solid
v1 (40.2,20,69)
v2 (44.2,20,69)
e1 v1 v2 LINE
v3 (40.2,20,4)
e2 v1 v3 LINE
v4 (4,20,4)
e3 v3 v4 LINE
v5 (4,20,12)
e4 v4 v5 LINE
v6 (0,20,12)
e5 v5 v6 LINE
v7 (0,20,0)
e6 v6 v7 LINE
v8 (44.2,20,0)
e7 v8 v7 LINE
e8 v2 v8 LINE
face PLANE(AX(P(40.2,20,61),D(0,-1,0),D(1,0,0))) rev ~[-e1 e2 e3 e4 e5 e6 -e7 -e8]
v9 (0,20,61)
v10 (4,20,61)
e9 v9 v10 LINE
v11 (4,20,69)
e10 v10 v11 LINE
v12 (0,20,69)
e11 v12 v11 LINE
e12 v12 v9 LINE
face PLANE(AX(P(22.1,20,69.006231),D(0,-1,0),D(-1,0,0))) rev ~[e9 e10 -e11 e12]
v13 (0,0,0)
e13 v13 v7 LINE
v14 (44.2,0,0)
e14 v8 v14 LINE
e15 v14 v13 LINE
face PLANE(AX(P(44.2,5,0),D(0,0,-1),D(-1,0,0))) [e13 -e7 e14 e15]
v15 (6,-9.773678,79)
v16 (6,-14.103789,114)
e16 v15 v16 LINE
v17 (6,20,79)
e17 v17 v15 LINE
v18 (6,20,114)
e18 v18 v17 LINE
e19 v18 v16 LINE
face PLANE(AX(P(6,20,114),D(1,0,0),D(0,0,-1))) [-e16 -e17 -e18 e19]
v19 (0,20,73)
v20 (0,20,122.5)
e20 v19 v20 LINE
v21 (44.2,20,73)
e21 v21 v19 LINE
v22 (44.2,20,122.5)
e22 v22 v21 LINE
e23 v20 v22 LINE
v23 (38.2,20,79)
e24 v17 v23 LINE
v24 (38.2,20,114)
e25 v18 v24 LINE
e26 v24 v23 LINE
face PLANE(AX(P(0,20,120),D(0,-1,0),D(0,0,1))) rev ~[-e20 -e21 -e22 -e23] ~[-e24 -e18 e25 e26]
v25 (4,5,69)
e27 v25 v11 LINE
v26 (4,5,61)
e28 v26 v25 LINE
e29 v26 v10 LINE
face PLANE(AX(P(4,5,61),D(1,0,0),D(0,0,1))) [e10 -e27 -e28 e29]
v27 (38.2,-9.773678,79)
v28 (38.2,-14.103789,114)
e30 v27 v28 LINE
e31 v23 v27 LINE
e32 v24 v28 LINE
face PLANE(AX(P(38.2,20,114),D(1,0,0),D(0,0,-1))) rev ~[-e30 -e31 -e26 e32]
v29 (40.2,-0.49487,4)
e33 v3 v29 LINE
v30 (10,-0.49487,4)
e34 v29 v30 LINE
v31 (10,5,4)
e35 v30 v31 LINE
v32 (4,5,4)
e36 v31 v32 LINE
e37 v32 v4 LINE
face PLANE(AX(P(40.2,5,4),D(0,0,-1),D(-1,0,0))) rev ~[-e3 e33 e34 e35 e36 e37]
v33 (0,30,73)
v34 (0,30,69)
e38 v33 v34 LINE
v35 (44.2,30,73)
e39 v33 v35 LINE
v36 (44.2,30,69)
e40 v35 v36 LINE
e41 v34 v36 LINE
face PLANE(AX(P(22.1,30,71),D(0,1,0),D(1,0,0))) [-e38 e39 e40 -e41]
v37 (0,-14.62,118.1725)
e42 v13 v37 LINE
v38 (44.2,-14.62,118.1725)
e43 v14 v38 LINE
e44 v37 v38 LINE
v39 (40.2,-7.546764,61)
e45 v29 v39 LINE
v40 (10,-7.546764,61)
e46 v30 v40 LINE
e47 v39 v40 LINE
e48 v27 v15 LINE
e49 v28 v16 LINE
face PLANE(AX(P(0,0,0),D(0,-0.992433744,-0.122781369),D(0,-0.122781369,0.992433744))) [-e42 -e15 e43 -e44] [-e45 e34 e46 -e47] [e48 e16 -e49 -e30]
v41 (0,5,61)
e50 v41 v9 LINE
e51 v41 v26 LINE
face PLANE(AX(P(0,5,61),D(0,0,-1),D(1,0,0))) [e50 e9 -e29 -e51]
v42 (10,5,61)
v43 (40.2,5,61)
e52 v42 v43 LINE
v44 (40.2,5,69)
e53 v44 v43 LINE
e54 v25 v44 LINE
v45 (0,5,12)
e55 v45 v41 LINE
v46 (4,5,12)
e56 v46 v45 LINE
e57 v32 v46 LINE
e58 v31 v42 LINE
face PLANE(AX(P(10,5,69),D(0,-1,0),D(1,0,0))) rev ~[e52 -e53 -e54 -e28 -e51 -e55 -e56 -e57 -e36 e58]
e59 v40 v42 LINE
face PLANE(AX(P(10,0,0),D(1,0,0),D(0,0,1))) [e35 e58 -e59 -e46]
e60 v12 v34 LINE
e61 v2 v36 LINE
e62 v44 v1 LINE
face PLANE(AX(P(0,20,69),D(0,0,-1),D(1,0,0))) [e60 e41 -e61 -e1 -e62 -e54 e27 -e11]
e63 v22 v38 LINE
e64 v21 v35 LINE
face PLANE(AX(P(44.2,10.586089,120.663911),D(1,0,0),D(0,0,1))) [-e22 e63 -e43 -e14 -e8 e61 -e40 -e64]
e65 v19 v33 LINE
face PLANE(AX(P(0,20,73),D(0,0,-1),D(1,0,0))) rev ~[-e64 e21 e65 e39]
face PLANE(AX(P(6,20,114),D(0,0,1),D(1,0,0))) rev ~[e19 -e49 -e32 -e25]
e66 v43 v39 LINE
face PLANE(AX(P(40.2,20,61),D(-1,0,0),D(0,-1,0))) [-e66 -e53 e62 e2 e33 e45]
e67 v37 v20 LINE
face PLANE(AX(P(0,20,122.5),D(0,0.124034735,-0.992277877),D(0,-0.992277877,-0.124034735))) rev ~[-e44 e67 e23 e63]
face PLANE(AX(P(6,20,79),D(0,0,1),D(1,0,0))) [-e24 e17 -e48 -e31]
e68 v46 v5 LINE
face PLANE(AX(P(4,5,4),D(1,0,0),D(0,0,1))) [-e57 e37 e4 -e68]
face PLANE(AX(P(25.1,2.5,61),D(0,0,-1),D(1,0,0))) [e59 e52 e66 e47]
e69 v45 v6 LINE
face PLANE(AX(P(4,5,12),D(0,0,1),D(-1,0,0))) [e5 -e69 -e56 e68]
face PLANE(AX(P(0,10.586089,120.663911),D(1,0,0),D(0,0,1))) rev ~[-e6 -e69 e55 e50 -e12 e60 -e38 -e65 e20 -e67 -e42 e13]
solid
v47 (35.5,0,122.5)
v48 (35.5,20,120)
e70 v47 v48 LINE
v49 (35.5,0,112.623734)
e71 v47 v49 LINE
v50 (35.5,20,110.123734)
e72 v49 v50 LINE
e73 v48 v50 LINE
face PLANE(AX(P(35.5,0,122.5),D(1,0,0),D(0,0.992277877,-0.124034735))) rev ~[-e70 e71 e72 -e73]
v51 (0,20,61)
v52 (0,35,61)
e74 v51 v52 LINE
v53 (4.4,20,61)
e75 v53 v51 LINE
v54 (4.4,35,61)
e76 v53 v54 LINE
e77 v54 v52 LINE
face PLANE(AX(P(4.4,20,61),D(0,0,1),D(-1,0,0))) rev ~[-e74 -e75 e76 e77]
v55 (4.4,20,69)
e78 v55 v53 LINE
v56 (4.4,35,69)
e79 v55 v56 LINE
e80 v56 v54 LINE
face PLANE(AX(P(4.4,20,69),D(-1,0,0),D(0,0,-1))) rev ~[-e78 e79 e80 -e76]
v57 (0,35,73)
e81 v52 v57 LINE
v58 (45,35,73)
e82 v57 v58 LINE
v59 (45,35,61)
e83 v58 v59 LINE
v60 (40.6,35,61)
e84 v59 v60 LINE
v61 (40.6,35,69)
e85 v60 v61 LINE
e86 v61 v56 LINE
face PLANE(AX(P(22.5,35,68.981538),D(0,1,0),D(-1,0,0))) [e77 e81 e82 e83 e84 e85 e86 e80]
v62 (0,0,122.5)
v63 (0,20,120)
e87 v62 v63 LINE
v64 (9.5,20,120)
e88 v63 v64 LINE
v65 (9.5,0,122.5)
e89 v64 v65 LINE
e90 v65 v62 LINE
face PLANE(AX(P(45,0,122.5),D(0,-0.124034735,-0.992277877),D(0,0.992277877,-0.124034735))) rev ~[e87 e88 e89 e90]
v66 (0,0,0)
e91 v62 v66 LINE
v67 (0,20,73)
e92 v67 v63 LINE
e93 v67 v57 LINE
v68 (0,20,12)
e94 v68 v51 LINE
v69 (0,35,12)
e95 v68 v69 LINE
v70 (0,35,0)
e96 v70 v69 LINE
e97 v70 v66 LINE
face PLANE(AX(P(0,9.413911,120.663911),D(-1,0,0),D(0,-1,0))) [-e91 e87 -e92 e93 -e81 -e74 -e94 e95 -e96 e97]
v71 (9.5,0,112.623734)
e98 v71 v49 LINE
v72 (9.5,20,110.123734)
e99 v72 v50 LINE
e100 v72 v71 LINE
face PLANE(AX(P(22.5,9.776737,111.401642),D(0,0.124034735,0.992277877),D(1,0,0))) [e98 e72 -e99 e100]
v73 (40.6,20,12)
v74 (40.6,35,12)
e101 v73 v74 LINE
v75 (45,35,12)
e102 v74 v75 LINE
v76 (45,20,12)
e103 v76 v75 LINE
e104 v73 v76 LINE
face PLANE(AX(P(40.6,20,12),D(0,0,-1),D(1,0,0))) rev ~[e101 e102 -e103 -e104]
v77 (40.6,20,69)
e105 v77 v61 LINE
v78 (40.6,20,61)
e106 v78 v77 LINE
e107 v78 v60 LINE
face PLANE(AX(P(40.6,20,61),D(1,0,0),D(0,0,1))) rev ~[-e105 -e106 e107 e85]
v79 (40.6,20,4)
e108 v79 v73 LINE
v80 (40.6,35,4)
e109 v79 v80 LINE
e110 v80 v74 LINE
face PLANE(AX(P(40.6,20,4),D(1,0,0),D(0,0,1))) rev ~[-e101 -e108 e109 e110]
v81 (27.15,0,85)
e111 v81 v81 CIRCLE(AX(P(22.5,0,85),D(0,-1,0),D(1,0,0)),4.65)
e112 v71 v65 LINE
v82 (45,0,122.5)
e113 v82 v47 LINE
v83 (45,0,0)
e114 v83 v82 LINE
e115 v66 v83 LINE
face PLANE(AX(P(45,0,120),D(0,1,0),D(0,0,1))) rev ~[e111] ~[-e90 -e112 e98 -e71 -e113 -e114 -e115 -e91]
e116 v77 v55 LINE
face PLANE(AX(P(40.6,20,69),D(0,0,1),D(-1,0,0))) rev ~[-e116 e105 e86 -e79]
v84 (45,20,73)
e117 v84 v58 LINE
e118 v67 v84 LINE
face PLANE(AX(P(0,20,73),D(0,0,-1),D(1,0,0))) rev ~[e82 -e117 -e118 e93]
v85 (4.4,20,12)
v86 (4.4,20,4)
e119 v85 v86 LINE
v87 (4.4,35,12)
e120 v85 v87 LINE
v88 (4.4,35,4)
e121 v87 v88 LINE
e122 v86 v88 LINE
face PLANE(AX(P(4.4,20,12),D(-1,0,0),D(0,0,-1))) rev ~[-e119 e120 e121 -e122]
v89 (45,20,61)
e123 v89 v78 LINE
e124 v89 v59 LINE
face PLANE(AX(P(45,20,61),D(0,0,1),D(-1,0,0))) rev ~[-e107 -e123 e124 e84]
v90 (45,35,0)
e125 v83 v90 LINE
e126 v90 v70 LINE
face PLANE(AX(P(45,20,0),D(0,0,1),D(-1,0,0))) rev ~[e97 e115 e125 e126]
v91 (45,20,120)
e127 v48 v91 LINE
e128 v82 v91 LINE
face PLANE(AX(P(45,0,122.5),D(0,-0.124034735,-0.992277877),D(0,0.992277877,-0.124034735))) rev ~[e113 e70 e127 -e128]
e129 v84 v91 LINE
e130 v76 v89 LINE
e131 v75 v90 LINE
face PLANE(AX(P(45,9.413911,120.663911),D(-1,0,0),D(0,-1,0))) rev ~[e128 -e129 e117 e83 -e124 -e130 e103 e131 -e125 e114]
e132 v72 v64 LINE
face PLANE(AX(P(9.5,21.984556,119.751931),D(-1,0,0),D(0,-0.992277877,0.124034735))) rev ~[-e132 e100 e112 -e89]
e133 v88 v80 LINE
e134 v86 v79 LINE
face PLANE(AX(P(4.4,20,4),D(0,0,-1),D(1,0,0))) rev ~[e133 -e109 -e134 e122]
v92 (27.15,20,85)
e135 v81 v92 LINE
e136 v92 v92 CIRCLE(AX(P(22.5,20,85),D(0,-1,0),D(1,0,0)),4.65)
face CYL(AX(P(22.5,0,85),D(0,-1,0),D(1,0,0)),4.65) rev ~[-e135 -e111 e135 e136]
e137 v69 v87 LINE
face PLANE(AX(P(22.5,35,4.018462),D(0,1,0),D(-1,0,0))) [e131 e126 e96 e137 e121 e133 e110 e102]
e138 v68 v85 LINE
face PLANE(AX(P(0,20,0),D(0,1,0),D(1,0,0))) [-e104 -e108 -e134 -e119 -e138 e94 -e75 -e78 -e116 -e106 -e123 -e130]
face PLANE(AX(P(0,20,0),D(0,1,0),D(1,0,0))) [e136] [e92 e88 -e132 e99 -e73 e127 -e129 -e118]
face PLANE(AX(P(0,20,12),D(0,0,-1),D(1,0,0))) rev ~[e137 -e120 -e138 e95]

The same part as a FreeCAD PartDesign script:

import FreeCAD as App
import Part
import Sketcher
from FreeCAD import Vector


def add_polygon(sketch, points):
    """Adds a closed chain of lines whose ends are joined by coincident constraints."""
    first, n = sketch.GeometryCount, len(points)
    for a, b in zip(points, points[1:] + points[:1]):
        sketch.addGeometry(Part.LineSegment(App.Vector(*a, 0), App.Vector(*b, 0)), False)
    for i in range(n):
        sketch.addConstraint(Sketcher.Constraint("Coincident", first + i, 2, first + (i + 1) % n, 1))

doc = App.newDocument("Part")
body = doc.addObject("PartDesign::Body", "Body")

# Sketch on XY plane
sketch1 = doc.addObject("Sketcher::SketchObject", "Sketch")
body.addObject(sketch1)
sketch1.AttachmentSupport = (doc.XY_Plane, [""])
sketch1.MapMode = "FlatFace"
add_polygon(sketch1, [(0, 20), (0, 0), (45, 0), (45, 20)])  # lines 0-3
sketch1.addConstraint(Sketcher.Constraint("Vertical", 0))
sketch1.addConstraint(Sketcher.Constraint("Horizontal", 1))
sketch1.addConstraint(Sketcher.Constraint("Vertical", 2))
sketch1.addConstraint(Sketcher.Constraint("Horizontal", 3))
sketch1.addConstraint(Sketcher.Constraint("Coincident", 0, 2, -1, 1))
sketch1.addConstraint(Sketcher.Constraint("DistanceX", 1, 1, 1, 2, 45.0))
sketch1.addConstraint(Sketcher.Constraint("DistanceY", 0, 2, 0, 1, 20.0))
pad1 = doc.addObject("PartDesign::Pad", "Pad")
body.addObject(pad1)
pad1.Profile = sketch1
pad1.Length = 120

# Sketch on YZ plane
sketch2 = doc.addObject("Sketcher::SketchObject", "Sketch001")
body.addObject(sketch2)
sketch2.AttachmentSupport = (doc.YZ_Plane, [""])
sketch2.MapMode = "FlatFace"
sketch2.AttachmentOffset = App.Placement(Vector(0, 0, 45), App.Rotation())
add_polygon(sketch2, [(0, 122.5), (0, 120), (20, 120)])  # lines 0-2
sketch2.addConstraint(Sketcher.Constraint("Vertical", 0))
sketch2.addConstraint(Sketcher.Constraint("Horizontal", 1))
sketch2.addConstraint(Sketcher.Constraint("PointOnObject", 0, 2, -2))
sketch2.addConstraint(Sketcher.Constraint("DistanceX", 1, 1, 1, 2, 20.0))
sketch2.addConstraint(Sketcher.Constraint("DistanceY", 0, 2, 0, 1, 2.5))
sketch2.addConstraint(Sketcher.Constraint("DistanceY", -1, 1, 0, 2, 120.0))
pad2 = doc.addObject("PartDesign::Pad", "Pad001")
body.addObject(pad2)
pad2.Profile = sketch2
pad2.Length = 45
pad2.Reversed = True

# Sketch on XZ plane
sketch3 = doc.addObject("Sketcher::SketchObject", "Sketch002")
body.addObject(sketch3)
sketch3.AttachmentSupport = (doc.XZ_Plane, [""])
sketch3.MapMode = "FlatFace"
sketch3.addGeometry(Part.Circle(Vector(22.5, 85, 0), Vector(0, 0, 1), 4.7), False)
sketch3.addConstraint(Sketcher.Constraint("Diameter", 0, 9.3))
sketch3.addConstraint(Sketcher.Constraint("DistanceY", -1, 1, 0, 3, 85.0))
sketch3.addConstraint(Sketcher.Constraint("DistanceX", -1, 1, 0, 3, 22.5))
pocket1 = doc.addObject("PartDesign::Pocket", "Pocket")
body.addObject(pocket1)
pocket1.Profile = sketch3
pocket1.Length = 20

# Sketch on XZ plane
sketch4 = doc.addObject("Sketcher::SketchObject", "Sketch003")
body.addObject(sketch4)
sketch4.AttachmentSupport = (doc.XZ_Plane, [""])
sketch4.MapMode = "FlatFace"
sketch4.AttachmentOffset = App.Placement(Vector(0, 0, -20), App.Rotation())
add_polygon(sketch4, [(4.4, 4), (40.6, 4), (40.6, 12), (45, 12), (45, 0), (0, 0), (0, 12), (4.4, 12)])  # lines 0-7
sketch4.addConstraint(Sketcher.Constraint("Horizontal", 0))
sketch4.addConstraint(Sketcher.Constraint("Vertical", 1))
sketch4.addConstraint(Sketcher.Constraint("Horizontal", 2))
sketch4.addConstraint(Sketcher.Constraint("Vertical", 3))
sketch4.addConstraint(Sketcher.Constraint("Horizontal", 4))
sketch4.addConstraint(Sketcher.Constraint("Vertical", 5))
sketch4.addConstraint(Sketcher.Constraint("Horizontal", 6))
sketch4.addConstraint(Sketcher.Constraint("Vertical", 7))
sketch4.addConstraint(Sketcher.Constraint("Coincident", 4, 2, -1, 1))
sketch4.addConstraint(Sketcher.Constraint("Horizontal", 2, 2, 5, 2))
sketch4.addConstraint(Sketcher.Constraint("Equal", 2, 6))
sketch4.addConstraint(Sketcher.Constraint("DistanceX", 4, 2, 4, 1, 45.0))
sketch4.addConstraint(Sketcher.Constraint("DistanceY", 1, 1, 1, 2, 8.0))
sketch4.addConstraint(Sketcher.Constraint("DistanceY", 3, 2, 3, 1, 12.0))
sketch4.addConstraint(Sketcher.Constraint("DistanceX", 0, 1, 0, 2, 36.2))
pad3 = doc.addObject("PartDesign::Pad", "Pad002")
body.addObject(pad3)
pad3.Profile = sketch4
pad3.Length = 15
pad3.Reversed = True

# Sketch on XZ plane
sketch5 = doc.addObject("Sketcher::SketchObject", "Sketch004")
body.addObject(sketch5)
sketch5.AttachmentSupport = (doc.XZ_Plane, [""])
sketch5.MapMode = "FlatFace"
sketch5.AttachmentOffset = App.Placement(Vector(0, 0, -20), App.Rotation())
add_polygon(sketch5, [(0, 73), (45, 73), (45, 61), (40.6, 61), (40.6, 69), (4.4, 69), (4.4, 61), (0, 61)])  # lines 0-7
sketch5.addConstraint(Sketcher.Constraint("Horizontal", 0))
sketch5.addConstraint(Sketcher.Constraint("Vertical", 1))
sketch5.addConstraint(Sketcher.Constraint("Horizontal", 2))
sketch5.addConstraint(Sketcher.Constraint("Vertical", 3))
sketch5.addConstraint(Sketcher.Constraint("Horizontal", 4))
sketch5.addConstraint(Sketcher.Constraint("Vertical", 5))
sketch5.addConstraint(Sketcher.Constraint("Horizontal", 6))
sketch5.addConstraint(Sketcher.Constraint("Vertical", 7))
sketch5.addConstraint(Sketcher.Constraint("PointOnObject", 6, 2, -2))
sketch5.addConstraint(Sketcher.Constraint("Horizontal", 2, 2, 5, 2))
sketch5.addConstraint(Sketcher.Constraint("Equal", 2, 6))
sketch5.addConstraint(Sketcher.Constraint("DistanceX", 0, 1, 0, 2, 45.0))
sketch5.addConstraint(Sketcher.Constraint("DistanceY", 1, 2, 1, 1, 12.0))
sketch5.addConstraint(Sketcher.Constraint("DistanceY", 3, 1, 3, 2, 8.0))
sketch5.addConstraint(Sketcher.Constraint("DistanceX", 2, 2, 2, 1, 4.4))
sketch5.addConstraint(Sketcher.Constraint("DistanceY", -1, 1, 0, 2, 73.0))
pad4 = doc.addObject("PartDesign::Pad", "Pad003")
body.addObject(pad4)
pad4.Profile = sketch5
pad4.Length = 15
pad4.Reversed = True

# Sketch on an angled plane
sketch6 = doc.addObject("Sketcher::SketchObject", "Sketch005")
body.addObject(sketch6)
sketch6.Placement = App.Placement(Vector(0, 15.076923, 120.615385), App.Rotation(Vector(1, 0, 0), Vector(0, 0.992277877, -0.124034735), Vector(0, 0.124034735, 0.992277877), "ZXY"))
add_polygon(sketch6, [(10, -15), (36, -15), (36, 7), (10, 7)])  # lines 0-3
sketch6.addConstraint(Sketcher.Constraint("Horizontal", 0))
sketch6.addConstraint(Sketcher.Constraint("Vertical", 1))
sketch6.addConstraint(Sketcher.Constraint("Horizontal", 2))
sketch6.addConstraint(Sketcher.Constraint("Vertical", 3))
sketch6.addConstraint(Sketcher.Constraint("DistanceX", 0, 1, 0, 2, 26.0))
sketch6.addConstraint(Sketcher.Constraint("DistanceX", -1, 1, 0, 2, 35.5))
sketch6.addConstraint(Sketcher.Constraint("DistanceY", 1, 1, 1, 2, 22.155644))
sketch6.addConstraint(Sketcher.Constraint("DistanceY", -1, 1, 1, 2, 6.961389))
pocket2 = doc.addObject("PartDesign::Pocket", "Pocket001")
body.addObject(pocket2)
pocket2.Profile = sketch6
pocket2.Length = 9.8
body2 = doc.addObject("PartDesign::Body", "Body001")

# Sketch on XZ plane
sketch7 = doc.addObject("Sketcher::SketchObject", "Sketch006")
body2.addObject(sketch7)
sketch7.AttachmentSupport = (doc.getObject("XZ_Plane001"), [""])
sketch7.MapMode = "FlatFace"
add_polygon(sketch7, [(0, 73), (0, 0), (10, 0), (10, 73)])  # lines 0-3
sketch7.addConstraint(Sketcher.Constraint("Vertical", 0))
sketch7.addConstraint(Sketcher.Constraint("Horizontal", 1))
sketch7.addConstraint(Sketcher.Constraint("Vertical", 2))
sketch7.addConstraint(Sketcher.Constraint("Horizontal", 3))
sketch7.addConstraint(Sketcher.Constraint("Coincident", 0, 2, -1, 1))
sketch7.addConstraint(Sketcher.Constraint("DistanceX", 1, 1, 1, 2, 10.0))
sketch7.addConstraint(Sketcher.Constraint("DistanceY", 0, 2, 0, 1, 73.0))
pad5 = doc.addObject("PartDesign::Pad", "Pad004")
body2.addObject(pad5)
pad5.Profile = sketch7
pad5.Length = 5
pad5.Reversed = True

# Sketch on XZ plane
sketch8 = doc.addObject("Sketcher::SketchObject", "Sketch007")
body2.addObject(sketch8)
sketch8.AttachmentSupport = (doc.getObject("XZ_Plane001"), [""])
sketch8.MapMode = "FlatFace"
sketch8.AttachmentOffset = App.Placement(Vector(0, 0, -5), App.Rotation())
add_polygon(sketch8, [(44.2, 0), (0, 0), (0, 12), (4, 12), (4, 4), (40.2, 4), (40.2, 12), (44.2, 12)])  # lines 0-7
sketch8.addConstraint(Sketcher.Constraint("Horizontal", 0))
sketch8.addConstraint(Sketcher.Constraint("Vertical", 1))
sketch8.addConstraint(Sketcher.Constraint("Horizontal", 2))
sketch8.addConstraint(Sketcher.Constraint("Vertical", 3))
sketch8.addConstraint(Sketcher.Constraint("Horizontal", 4))
sketch8.addConstraint(Sketcher.Constraint("Vertical", 5))
sketch8.addConstraint(Sketcher.Constraint("Horizontal", 6))
sketch8.addConstraint(Sketcher.Constraint("Vertical", 7))
sketch8.addConstraint(Sketcher.Constraint("Coincident", 0, 2, -1, 1))
sketch8.addConstraint(Sketcher.Constraint("Horizontal", 2, 2, 5, 2))
sketch8.addConstraint(Sketcher.Constraint("Equal", 2, 6))
sketch8.addConstraint(Sketcher.Constraint("DistanceX", 2, 1, 2, 2, 4.0))
sketch8.addConstraint(Sketcher.Constraint("DistanceY", 1, 1, 1, 2, 12.0))
sketch8.addConstraint(Sketcher.Constraint("DistanceY", 3, 2, 3, 1, 8.0))
sketch8.addConstraint(Sketcher.Constraint("DistanceX", 0, 2, 0, 1, 44.2))
pad6 = doc.addObject("PartDesign::Pad", "Pad005")
body2.addObject(pad6)
pad6.Profile = sketch8
pad6.Length = 15
pad6.Reversed = True

# Sketch on XZ plane
sketch9 = doc.addObject("Sketcher::SketchObject", "Sketch008")
body2.addObject(sketch9)
sketch9.AttachmentSupport = (doc.getObject("XZ_Plane001"), [""])
sketch9.MapMode = "FlatFace"
sketch9.AttachmentOffset = App.Placement(Vector(0, 0, -5), App.Rotation())
add_polygon(sketch9, [(44.2, 0), (0, 0), (0, 12), (4, 12), (4, 4), (40.2, 4), (40.2, 12), (44.2, 12)])  # lines 0-7
sketch9.addConstraint(Sketcher.Constraint("Horizontal", 0))
sketch9.addConstraint(Sketcher.Constraint("Vertical", 1))
sketch9.addConstraint(Sketcher.Constraint("Horizontal", 2))
sketch9.addConstraint(Sketcher.Constraint("Vertical", 3))
sketch9.addConstraint(Sketcher.Constraint("Horizontal", 4))
sketch9.addConstraint(Sketcher.Constraint("Vertical", 5))
sketch9.addConstraint(Sketcher.Constraint("Horizontal", 6))
sketch9.addConstraint(Sketcher.Constraint("Vertical", 7))
sketch9.addConstraint(Sketcher.Constraint("Coincident", 0, 2, -1, 1))
sketch9.addConstraint(Sketcher.Constraint("Horizontal", 2, 2, 5, 2))
sketch9.addConstraint(Sketcher.Constraint("Equal", 2, 6))
sketch9.addConstraint(Sketcher.Constraint("DistanceX", 2, 1, 2, 2, 4.0))
sketch9.addConstraint(Sketcher.Constraint("DistanceY", 1, 1, 1, 2, 12.0))
sketch9.addConstraint(Sketcher.Constraint("DistanceY", 3, 2, 3, 1, 8.0))
sketch9.addConstraint(Sketcher.Constraint("DistanceX", 0, 2, 0, 1, 44.2))
pad7 = doc.addObject("PartDesign::Pad", "Pad006")
body2.addObject(pad7)
pad7.Profile = sketch9
pad7.Length = 5

# Sketch on XZ plane
sketch10 = doc.addObject("Sketcher::SketchObject", "Sketch009")
body2.addObject(sketch10)
sketch10.AttachmentSupport = (doc.getObject("XZ_Plane001"), [""])
sketch10.MapMode = "FlatFace"
sketch10.AttachmentOffset = App.Placement(Vector(0, 0, -5), App.Rotation())
add_polygon(sketch10, [(0, 61), (0, 73), (44.2, 73), (44.2, 61), (40.2, 61), (40.2, 69), (4, 69), (4, 61)])  # lines 0-7
sketch10.addConstraint(Sketcher.Constraint("Vertical", 0))
sketch10.addConstraint(Sketcher.Constraint("Horizontal", 1))
sketch10.addConstraint(Sketcher.Constraint("Vertical", 2))
sketch10.addConstraint(Sketcher.Constraint("Horizontal", 3))
sketch10.addConstraint(Sketcher.Constraint("Vertical", 4))
sketch10.addConstraint(Sketcher.Constraint("Horizontal", 5))
sketch10.addConstraint(Sketcher.Constraint("Vertical", 6))
sketch10.addConstraint(Sketcher.Constraint("Horizontal", 7))
sketch10.addConstraint(Sketcher.Constraint("PointOnObject", 0, 2, -2))
sketch10.addConstraint(Sketcher.Constraint("Horizontal", 3, 2, 6, 2))
sketch10.addConstraint(Sketcher.Constraint("Equal", 3, 7))
sketch10.addConstraint(Sketcher.Constraint("DistanceX", 3, 2, 3, 1, 4.0))
sketch10.addConstraint(Sketcher.Constraint("DistanceY", 0, 1, 0, 2, 12.0))
sketch10.addConstraint(Sketcher.Constraint("DistanceY", 4, 1, 4, 2, 8.0))
sketch10.addConstraint(Sketcher.Constraint("DistanceX", 1, 1, 1, 2, 44.2))
sketch10.addConstraint(Sketcher.Constraint("DistanceY", -1, 1, 0, 2, 73.0))
pad8 = doc.addObject("PartDesign::Pad", "Pad007")
body2.addObject(pad8)
pad8.Profile = sketch10
pad8.Length = 15
pad8.Reversed = True

# Sketch on XZ plane
sketch11 = doc.addObject("Sketcher::SketchObject", "Sketch010")
body2.addObject(sketch11)
sketch11.AttachmentSupport = (doc.getObject("XZ_Plane001"), [""])
sketch11.MapMode = "FlatFace"
sketch11.AttachmentOffset = App.Placement(Vector(0, 0, -5), App.Rotation())
add_polygon(sketch11, [(0, 61), (0, 73), (44.2, 73), (44.2, 61), (40.2, 61), (40.2, 69), (4, 69), (4, 61)])  # lines 0-7
sketch11.addConstraint(Sketcher.Constraint("Vertical", 0))
sketch11.addConstraint(Sketcher.Constraint("Horizontal", 1))
sketch11.addConstraint(Sketcher.Constraint("Vertical", 2))
sketch11.addConstraint(Sketcher.Constraint("Horizontal", 3))
sketch11.addConstraint(Sketcher.Constraint("Vertical", 4))
sketch11.addConstraint(Sketcher.Constraint("Horizontal", 5))
sketch11.addConstraint(Sketcher.Constraint("Vertical", 6))
sketch11.addConstraint(Sketcher.Constraint("Horizontal", 7))
sketch11.addConstraint(Sketcher.Constraint("PointOnObject", 0, 2, -2))
sketch11.addConstraint(Sketcher.Constraint("Horizontal", 3, 2, 6, 2))
sketch11.addConstraint(Sketcher.Constraint("Equal", 3, 7))
sketch11.addConstraint(Sketcher.Constraint("DistanceX", 3, 2, 3, 1, 4.0))
sketch11.addConstraint(Sketcher.Constraint("DistanceY", 0, 1, 0, 2, 12.0))
sketch11.addConstraint(Sketcher.Constraint("DistanceY", 4, 1, 4, 2, 8.0))
sketch11.addConstraint(Sketcher.Constraint("DistanceX", 1, 1, 1, 2, 44.2))
sketch11.addConstraint(Sketcher.Constraint("DistanceY", -1, 1, 0, 2, 73.0))
pad9 = doc.addObject("PartDesign::Pad", "Pad008")
body2.addObject(pad9)
pad9.Profile = sketch11
pad9.Length = 5

# Sketch on XZ plane
sketch12 = doc.addObject("Sketcher::SketchObject", "Sketch011")
body2.addObject(sketch12)
sketch12.AttachmentSupport = (doc.getObject("XZ_Plane001"), [""])
sketch12.MapMode = "FlatFace"
sketch12.AttachmentOffset = App.Placement(Vector(0, 0, -20), App.Rotation())
add_polygon(sketch12, [(0, 69), (0, 73), (44.2, 73), (44.2, 69)])  # lines 0-3
sketch12.addConstraint(Sketcher.Constraint("Vertical", 0))
sketch12.addConstraint(Sketcher.Constraint("Horizontal", 1))
sketch12.addConstraint(Sketcher.Constraint("Vertical", 2))
sketch12.addConstraint(Sketcher.Constraint("Horizontal", 3))
sketch12.addConstraint(Sketcher.Constraint("PointOnObject", 0, 2, -2))
sketch12.addConstraint(Sketcher.Constraint("DistanceY", 0, 1, 0, 2, 4.0))
sketch12.addConstraint(Sketcher.Constraint("DistanceX", 1, 1, 1, 2, 44.2))
sketch12.addConstraint(Sketcher.Constraint("DistanceY", -1, 1, 0, 2, 73.0))
pad10 = doc.addObject("PartDesign::Pad", "Pad009")
body2.addObject(pad10)
pad10.Profile = sketch12
pad10.Length = 10
pad10.Reversed = True

# Sketch on XY plane
sketch13 = doc.addObject("Sketcher::SketchObject", "Sketch012")
body2.addObject(sketch13)
sketch13.AttachmentSupport = (doc.getObject("XY_Plane001"), [""])
sketch13.MapMode = "FlatFace"
sketch13.AttachmentOffset = App.Placement(Vector(0, 0, 69), App.Rotation())
add_polygon(sketch13, [(10, 0), (10, 5), (40, 5), (40, 0)])  # lines 0-3
sketch13.addConstraint(Sketcher.Constraint("Vertical", 0))
sketch13.addConstraint(Sketcher.Constraint("Horizontal", 1))
sketch13.addConstraint(Sketcher.Constraint("Vertical", 2))
sketch13.addConstraint(Sketcher.Constraint("Horizontal", 3))
sketch13.addConstraint(Sketcher.Constraint("PointOnObject", 2, 2, -1))
sketch13.addConstraint(Sketcher.Constraint("DistanceY", 0, 1, 0, 2, 5.0))
sketch13.addConstraint(Sketcher.Constraint("DistanceX", 1, 1, 1, 2, 30.2))
sketch13.addConstraint(Sketcher.Constraint("DistanceX", -1, 1, 0, 2, 10.0))
pad11 = doc.addObject("PartDesign::Pad", "Pad010")
body2.addObject(pad11)
pad11.Profile = sketch13
pad11.Length = 8
pad11.Reversed = True

# Sketch on XY plane
sketch14 = doc.addObject("Sketcher::SketchObject", "Sketch013")
body2.addObject(sketch14)
sketch14.AttachmentSupport = (doc.getObject("XY_Plane001"), [""])
sketch14.MapMode = "FlatFace"
sketch14.AttachmentOffset = App.Placement(Vector(0, 0, 12), App.Rotation())
add_polygon(sketch14, [(44.2, 0), (44.2, 5), (40.2, 5), (40.2, 0)])  # lines 0-3
sketch14.addConstraint(Sketcher.Constraint("Vertical", 0))
sketch14.addConstraint(Sketcher.Constraint("Horizontal", 1))
sketch14.addConstraint(Sketcher.Constraint("Vertical", 2))
sketch14.addConstraint(Sketcher.Constraint("Horizontal", 3))
sketch14.addConstraint(Sketcher.Constraint("PointOnObject", 2, 2, -1))
sketch14.addConstraint(Sketcher.Constraint("DistanceX", 1, 2, 1, 1, 4.0))
sketch14.addConstraint(Sketcher.Constraint("DistanceY", 0, 1, 0, 2, 5.0))
sketch14.addConstraint(Sketcher.Constraint("DistanceX", -1, 1, 0, 2, 44.2))
pad12 = doc.addObject("PartDesign::Pad", "Pad011")
body2.addObject(pad12)
pad12.Profile = sketch14
pad12.Length = 49

# Sketch on XY plane
sketch15 = doc.addObject("Sketcher::SketchObject", "Sketch014")
body2.addObject(sketch15)
sketch15.AttachmentSupport = (doc.getObject("XY_Plane001"), [""])
sketch15.MapMode = "FlatFace"
sketch15.AttachmentOffset = App.Placement(Vector(0, 0, 61), App.Rotation())
add_polygon(sketch15, [(40.2, 5), (40.2, 20), (44.2, 20), (44.2, 5)])  # lines 0-3
sketch15.addConstraint(Sketcher.Constraint("Vertical", 0))
sketch15.addConstraint(Sketcher.Constraint("Horizontal", 1))
sketch15.addConstraint(Sketcher.Constraint("Vertical", 2))
sketch15.addConstraint(Sketcher.Constraint("Horizontal", 3))
sketch15.addConstraint(Sketcher.Constraint("DistanceX", 1, 1, 1, 2, 4.0))
sketch15.addConstraint(Sketcher.Constraint("DistanceY", 0, 1, 0, 2, 15.0))
sketch15.addConstraint(Sketcher.Constraint("DistanceY", -1, 1, 0, 2, 20.0))
sketch15.addConstraint(Sketcher.Constraint("DistanceX", -1, 1, 0, 2, 40.2))
pad13 = doc.addObject("PartDesign::Pad", "Pad012")
body2.addObject(pad13)
pad13.Profile = sketch15
pad13.Length = 49
pad13.Reversed = True

# Sketch on XY plane
sketch16 = doc.addObject("Sketcher::SketchObject", "Sketch015")
body2.addObject(sketch16)
sketch16.AttachmentSupport = (doc.getObject("XY_Plane001"), [""])
sketch16.MapMode = "FlatFace"
sketch16.AttachmentOffset = App.Placement(Vector(0, 0, 73), App.Rotation())
add_polygon(sketch16, [(44, 0), (44, 20), (0, 20), (0, 0)])  # lines 0-3
sketch16.addConstraint(Sketcher.Constraint("Vertical", 0))
sketch16.addConstraint(Sketcher.Constraint("Horizontal", 1))
sketch16.addConstraint(Sketcher.Constraint("Vertical", 2))
sketch16.addConstraint(Sketcher.Constraint("Horizontal", 3))
sketch16.addConstraint(Sketcher.Constraint("Coincident", 2, 2, -1, 1))
sketch16.addConstraint(Sketcher.Constraint("DistanceY", 0, 1, 0, 2, 20.0))
sketch16.addConstraint(Sketcher.Constraint("DistanceX", 1, 2, 1, 1, 44.2))
pad14 = doc.addObject("PartDesign::Pad", "Pad013")
body2.addObject(pad14)
pad14.Profile = sketch16
pad14.Length = 47

# Sketch on YZ plane
sketch17 = doc.addObject("Sketcher::SketchObject", "Sketch016")
body2.addObject(sketch17)
sketch17.AttachmentSupport = (doc.getObject("YZ_Plane001"), [""])
sketch17.MapMode = "FlatFace"
add_polygon(sketch17, [(20, 120), (0, 120), (20, 122.5)])  # lines 0-2
sketch17.addConstraint(Sketcher.Constraint("Horizontal", 0))
sketch17.addConstraint(Sketcher.Constraint("Vertical", 2))
sketch17.addConstraint(Sketcher.Constraint("PointOnObject", 0, 2, -2))
sketch17.addConstraint(Sketcher.Constraint("DistanceX", 0, 2, 0, 1, 20.0))
sketch17.addConstraint(Sketcher.Constraint("DistanceY", 2, 2, 2, 1, 2.5))
sketch17.addConstraint(Sketcher.Constraint("DistanceY", -1, 1, 0, 2, 120.0))
pad15 = doc.addObject("PartDesign::Pad", "Pad014")
body2.addObject(pad15)
pad15.Profile = sketch17
pad15.Length = 44.2

# Sketch on YZ plane
sketch18 = doc.addObject("Sketcher::SketchObject", "Sketch017")
body2.addObject(sketch18)
sketch18.AttachmentSupport = (doc.getObject("YZ_Plane001"), [""])
sketch18.MapMode = "FlatFace"
add_polygon(sketch18, [(0, 120), (0, 0), (-15, 118)])  # lines 0-2
sketch18.addConstraint(Sketcher.Constraint("Vertical", 0))
sketch18.addConstraint(Sketcher.Constraint("Coincident", 0, 2, -1, 1))
sketch18.addConstraint(Sketcher.Constraint("DistanceY", 0, 2, 0, 1, 120.0))
sketch18.addConstraint(Sketcher.Constraint("DistanceX", 1, 2, -1, 1, 14.62))
sketch18.addConstraint(Sketcher.Constraint("DistanceY", -1, 1, 1, 2, 118.1725))
pad16 = doc.addObject("PartDesign::Pad", "Pad015")
body2.addObject(pad16)
pad16.Profile = sketch18
pad16.Length = 44.2

# Sketch on XZ plane
sketch19 = doc.addObject("Sketcher::SketchObject", "Sketch018")
body2.addObject(sketch19)
sketch19.AttachmentSupport = (doc.getObject("XZ_Plane001"), [""])
sketch19.MapMode = "FlatFace"
add_polygon(sketch19, [(10, 4), (10, 61), (40, 61), (40, 4)])  # lines 0-3
sketch19.addConstraint(Sketcher.Constraint("Vertical", 0))
sketch19.addConstraint(Sketcher.Constraint("Horizontal", 1))
sketch19.addConstraint(Sketcher.Constraint("Vertical", 2))
sketch19.addConstraint(Sketcher.Constraint("Horizontal", 3))
sketch19.addConstraint(Sketcher.Constraint("DistanceY", 0, 1, 0, 2, 57.0))
sketch19.addConstraint(Sketcher.Constraint("DistanceX", 1, 1, 1, 2, 30.2))
sketch19.addConstraint(Sketcher.Constraint("DistanceX", -1, 1, 0, 2, 10.0))
sketch19.addConstraint(Sketcher.Constraint("DistanceY", -1, 1, 0, 2, 61.0))
pocket3 = doc.addObject("PartDesign::Pocket", "Pocket002")
body2.addObject(pocket3)
pocket3.Profile = sketch19
pocket3.Length = 10
pocket3.Reversed = True

# Sketch on XZ plane
sketch20 = doc.addObject("Sketcher::SketchObject", "Sketch019")
body2.addObject(sketch20)
sketch20.AttachmentSupport = (doc.getObject("XZ_Plane001"), [""])
sketch20.MapMode = "FlatFace"
sketch20.AttachmentOffset = App.Placement(Vector(0, 0, -20), App.Rotation())
add_polygon(sketch20, [(6, 79), (6, 114), (38, 114), (38, 79)])  # lines 0-3
sketch20.addConstraint(Sketcher.Constraint("Vertical", 0))
sketch20.addConstraint(Sketcher.Constraint("Horizontal", 1))
sketch20.addConstraint(Sketcher.Constraint("Vertical", 2))
sketch20.addConstraint(Sketcher.Constraint("Horizontal", 3))
sketch20.addConstraint(Sketcher.Constraint("DistanceY", 0, 1, 0, 2, 35.0))
sketch20.addConstraint(Sketcher.Constraint("DistanceX", 1, 1, 1, 2, 32.2))
sketch20.addConstraint(Sketcher.Constraint("DistanceX", -1, 1, 0, 2, 6.0))
sketch20.addConstraint(Sketcher.Constraint("DistanceY", -1, 1, 0, 2, 114.0))
pocket4 = doc.addObject("PartDesign::Pocket", "Pocket003")
body2.addObject(pocket4)
pocket4.Profile = sketch20
pocket4.Length = 50
pocket4.Reversed = True

doc.recompute()
